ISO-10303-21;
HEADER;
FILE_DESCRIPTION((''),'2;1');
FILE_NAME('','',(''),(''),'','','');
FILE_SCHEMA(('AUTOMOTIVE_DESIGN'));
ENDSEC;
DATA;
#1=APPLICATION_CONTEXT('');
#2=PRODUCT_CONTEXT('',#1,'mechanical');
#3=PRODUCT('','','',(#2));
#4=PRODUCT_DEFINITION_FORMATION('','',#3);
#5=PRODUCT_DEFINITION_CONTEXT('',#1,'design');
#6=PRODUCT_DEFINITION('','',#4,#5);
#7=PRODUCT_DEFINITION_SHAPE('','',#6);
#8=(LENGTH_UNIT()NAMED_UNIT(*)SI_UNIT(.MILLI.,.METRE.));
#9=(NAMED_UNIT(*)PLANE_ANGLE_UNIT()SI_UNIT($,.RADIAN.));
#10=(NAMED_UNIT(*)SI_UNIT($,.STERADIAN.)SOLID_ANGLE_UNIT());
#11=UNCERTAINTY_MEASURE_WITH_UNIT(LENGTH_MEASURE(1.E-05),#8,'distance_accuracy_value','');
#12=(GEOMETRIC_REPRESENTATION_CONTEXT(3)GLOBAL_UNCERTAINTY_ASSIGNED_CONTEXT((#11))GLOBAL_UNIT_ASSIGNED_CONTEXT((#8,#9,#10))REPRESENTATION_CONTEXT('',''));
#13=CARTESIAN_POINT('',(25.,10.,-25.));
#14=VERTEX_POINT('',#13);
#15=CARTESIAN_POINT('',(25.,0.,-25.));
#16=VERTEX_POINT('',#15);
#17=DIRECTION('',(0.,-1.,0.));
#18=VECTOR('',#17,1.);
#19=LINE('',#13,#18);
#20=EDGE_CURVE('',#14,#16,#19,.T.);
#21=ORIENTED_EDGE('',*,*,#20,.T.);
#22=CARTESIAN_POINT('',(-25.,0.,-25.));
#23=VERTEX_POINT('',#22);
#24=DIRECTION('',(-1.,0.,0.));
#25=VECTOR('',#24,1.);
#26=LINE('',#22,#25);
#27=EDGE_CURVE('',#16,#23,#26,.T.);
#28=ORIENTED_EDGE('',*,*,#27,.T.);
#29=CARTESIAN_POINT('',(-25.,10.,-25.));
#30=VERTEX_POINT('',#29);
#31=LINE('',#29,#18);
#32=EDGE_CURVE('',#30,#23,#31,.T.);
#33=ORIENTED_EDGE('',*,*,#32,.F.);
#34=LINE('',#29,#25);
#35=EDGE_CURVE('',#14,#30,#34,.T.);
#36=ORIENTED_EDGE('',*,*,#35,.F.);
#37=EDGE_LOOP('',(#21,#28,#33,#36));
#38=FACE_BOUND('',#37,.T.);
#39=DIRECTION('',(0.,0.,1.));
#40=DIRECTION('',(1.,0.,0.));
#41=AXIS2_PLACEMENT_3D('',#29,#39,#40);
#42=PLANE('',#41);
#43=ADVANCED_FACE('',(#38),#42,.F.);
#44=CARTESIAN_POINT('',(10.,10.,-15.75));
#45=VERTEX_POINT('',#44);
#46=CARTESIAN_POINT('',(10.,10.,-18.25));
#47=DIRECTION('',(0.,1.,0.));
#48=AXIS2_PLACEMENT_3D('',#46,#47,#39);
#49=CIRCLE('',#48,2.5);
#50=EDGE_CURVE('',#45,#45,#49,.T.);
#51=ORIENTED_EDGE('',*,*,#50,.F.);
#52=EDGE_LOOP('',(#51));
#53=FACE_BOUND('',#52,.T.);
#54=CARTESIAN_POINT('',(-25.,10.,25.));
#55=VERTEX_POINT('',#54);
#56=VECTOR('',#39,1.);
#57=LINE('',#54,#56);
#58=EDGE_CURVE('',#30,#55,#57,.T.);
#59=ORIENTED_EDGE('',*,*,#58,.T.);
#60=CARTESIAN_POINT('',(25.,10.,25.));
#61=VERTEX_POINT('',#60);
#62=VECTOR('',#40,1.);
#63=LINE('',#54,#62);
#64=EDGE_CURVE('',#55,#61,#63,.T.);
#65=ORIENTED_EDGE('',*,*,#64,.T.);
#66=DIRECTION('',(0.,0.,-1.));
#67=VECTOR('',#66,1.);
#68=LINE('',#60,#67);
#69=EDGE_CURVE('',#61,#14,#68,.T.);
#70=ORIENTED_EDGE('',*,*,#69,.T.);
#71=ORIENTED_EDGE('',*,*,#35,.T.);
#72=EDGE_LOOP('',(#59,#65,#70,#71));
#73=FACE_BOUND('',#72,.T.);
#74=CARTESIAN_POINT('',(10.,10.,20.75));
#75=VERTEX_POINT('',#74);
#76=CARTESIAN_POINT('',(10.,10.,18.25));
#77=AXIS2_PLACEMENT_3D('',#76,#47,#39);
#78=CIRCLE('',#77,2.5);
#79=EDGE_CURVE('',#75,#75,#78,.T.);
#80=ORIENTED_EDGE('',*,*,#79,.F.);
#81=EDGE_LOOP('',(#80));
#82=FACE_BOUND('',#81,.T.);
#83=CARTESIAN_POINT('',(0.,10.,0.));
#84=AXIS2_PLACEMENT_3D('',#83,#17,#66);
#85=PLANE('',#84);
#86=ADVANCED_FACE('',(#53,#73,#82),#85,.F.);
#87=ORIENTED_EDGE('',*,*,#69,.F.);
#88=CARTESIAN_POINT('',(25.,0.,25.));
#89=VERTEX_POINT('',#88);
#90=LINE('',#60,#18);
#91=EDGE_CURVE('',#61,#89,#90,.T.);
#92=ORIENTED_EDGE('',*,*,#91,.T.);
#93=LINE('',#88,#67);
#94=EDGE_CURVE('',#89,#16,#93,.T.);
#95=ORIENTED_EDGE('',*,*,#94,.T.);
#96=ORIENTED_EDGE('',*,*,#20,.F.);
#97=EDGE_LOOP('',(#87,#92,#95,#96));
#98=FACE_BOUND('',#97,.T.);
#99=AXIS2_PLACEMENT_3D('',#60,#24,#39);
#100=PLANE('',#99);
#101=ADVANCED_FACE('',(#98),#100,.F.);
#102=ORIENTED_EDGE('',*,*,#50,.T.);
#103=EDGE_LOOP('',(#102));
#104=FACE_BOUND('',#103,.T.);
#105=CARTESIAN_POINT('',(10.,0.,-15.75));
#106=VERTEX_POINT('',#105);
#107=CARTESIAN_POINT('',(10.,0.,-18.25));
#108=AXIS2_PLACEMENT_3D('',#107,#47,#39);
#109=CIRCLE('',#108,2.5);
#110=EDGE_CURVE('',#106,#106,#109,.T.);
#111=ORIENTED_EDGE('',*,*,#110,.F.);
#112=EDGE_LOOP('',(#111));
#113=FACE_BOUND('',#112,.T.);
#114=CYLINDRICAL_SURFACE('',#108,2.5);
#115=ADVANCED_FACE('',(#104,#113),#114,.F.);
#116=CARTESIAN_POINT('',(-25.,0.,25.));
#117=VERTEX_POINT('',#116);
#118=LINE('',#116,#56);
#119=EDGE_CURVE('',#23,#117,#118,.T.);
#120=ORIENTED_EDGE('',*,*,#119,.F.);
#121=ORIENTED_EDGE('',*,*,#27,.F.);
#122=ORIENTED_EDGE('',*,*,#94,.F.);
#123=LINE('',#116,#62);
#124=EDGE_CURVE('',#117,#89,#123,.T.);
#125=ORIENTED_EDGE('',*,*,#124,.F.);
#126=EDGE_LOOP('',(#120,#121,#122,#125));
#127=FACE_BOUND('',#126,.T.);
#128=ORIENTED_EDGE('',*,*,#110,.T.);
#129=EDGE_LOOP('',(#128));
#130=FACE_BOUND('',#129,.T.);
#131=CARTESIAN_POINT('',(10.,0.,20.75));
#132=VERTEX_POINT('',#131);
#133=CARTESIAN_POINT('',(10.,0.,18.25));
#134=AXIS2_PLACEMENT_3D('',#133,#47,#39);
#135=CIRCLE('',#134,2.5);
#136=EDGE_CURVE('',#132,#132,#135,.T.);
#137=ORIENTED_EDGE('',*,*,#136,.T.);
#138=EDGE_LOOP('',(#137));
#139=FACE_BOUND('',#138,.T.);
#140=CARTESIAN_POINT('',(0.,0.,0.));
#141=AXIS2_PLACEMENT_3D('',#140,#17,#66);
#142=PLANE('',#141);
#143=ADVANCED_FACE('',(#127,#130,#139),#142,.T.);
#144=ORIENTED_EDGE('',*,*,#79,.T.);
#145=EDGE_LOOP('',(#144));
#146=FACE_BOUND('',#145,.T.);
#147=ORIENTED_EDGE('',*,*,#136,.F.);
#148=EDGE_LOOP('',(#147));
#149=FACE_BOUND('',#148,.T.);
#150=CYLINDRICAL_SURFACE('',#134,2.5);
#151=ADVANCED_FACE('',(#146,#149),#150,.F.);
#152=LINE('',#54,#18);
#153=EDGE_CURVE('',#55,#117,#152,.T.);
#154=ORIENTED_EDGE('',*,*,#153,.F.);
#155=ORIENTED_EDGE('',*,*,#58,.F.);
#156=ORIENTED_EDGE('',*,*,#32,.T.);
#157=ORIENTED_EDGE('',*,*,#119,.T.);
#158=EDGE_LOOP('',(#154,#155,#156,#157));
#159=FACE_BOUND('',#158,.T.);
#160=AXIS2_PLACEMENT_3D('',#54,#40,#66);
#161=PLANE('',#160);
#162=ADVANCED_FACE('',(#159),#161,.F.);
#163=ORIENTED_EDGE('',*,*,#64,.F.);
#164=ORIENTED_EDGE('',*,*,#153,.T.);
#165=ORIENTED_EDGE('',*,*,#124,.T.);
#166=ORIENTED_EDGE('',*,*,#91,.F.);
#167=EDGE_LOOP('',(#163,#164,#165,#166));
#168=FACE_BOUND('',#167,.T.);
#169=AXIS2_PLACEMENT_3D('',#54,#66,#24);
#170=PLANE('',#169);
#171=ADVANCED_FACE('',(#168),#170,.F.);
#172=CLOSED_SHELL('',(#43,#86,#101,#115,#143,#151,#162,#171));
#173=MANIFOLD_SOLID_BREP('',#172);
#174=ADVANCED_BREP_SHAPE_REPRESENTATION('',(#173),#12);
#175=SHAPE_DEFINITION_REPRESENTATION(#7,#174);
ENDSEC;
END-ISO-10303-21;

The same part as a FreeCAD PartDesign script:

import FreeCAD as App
import Part
import Sketcher


def add_polygon(sketch, points):
    """Adds a closed chain of lines whose ends are joined by coincident constraints."""
    first, n = sketch.GeometryCount, len(points)
    for a, b in zip(points, points[1:] + points[:1]):
        sketch.addGeometry(Part.LineSegment(App.Vector(*a, 0), App.Vector(*b, 0)), False)
    for i in range(n):
        sketch.addConstraint(Sketcher.Constraint("Coincident", first + i, 2, first + (i + 1) % n, 1))

doc = App.newDocument("Part")
body = doc.addObject("PartDesign::Body", "Body")

# Sketch on XZ plane
sketch1 = body.newObject("Sketcher::SketchObject", "Sketch")
sketch1.AttachmentSupport = (doc.getObject("XZ_Plane"), [""])
sketch1.MapMode = "FlatFace"
add_polygon(sketch1, [(-25, -25), (-25, 25), (25, 25), (25, -25)])  # lines 0-3
sketch1.addConstraint(Sketcher.Constraint("Vertical", 0))
sketch1.addConstraint(Sketcher.Constraint("Horizontal", 1))
sketch1.addConstraint(Sketcher.Constraint("Vertical", 2))
sketch1.addConstraint(Sketcher.Constraint("Horizontal", 3))
sketch1.addConstraint(Sketcher.Constraint("Symmetric", 0, 2, 2, 2, -1, 1))
sketch1.addConstraint(Sketcher.Constraint("Equal", 3, 0))
sketch1.addConstraint(Sketcher.Constraint("DistanceX", 1, 1, 1, 2, 50.0))
pad1 = body.newObject("PartDesign::Pad", "Pad")
pad1.Profile = sketch1
pad1.Length = 10
pad1.Reversed = True

# Sketch on XZ plane
sketch2 = body.newObject("Sketcher::SketchObject", "Sketch001")
sketch2.AttachmentSupport = (doc.getObject("XZ_Plane"), [""])
sketch2.MapMode = "FlatFace"
sketch2.AttachmentOffset = App.Placement(App.Vector(0, 0, -10), App.Rotation())
sketch2.addGeometry(Part.Circle(App.Vector(10, -18.2, 0), App.Vector(0, 0, 1), 2.5), False)
sketch2.addGeometry(Part.Circle(App.Vector(10, 18.2, 0), App.Vector(0, 0, 1), 2.5), False)
sketch2.addConstraint(Sketcher.Constraint("Equal", 0, 1))
sketch2.addConstraint(Sketcher.Constraint("Symmetric", 0, 3, 1, 3, -1))
sketch2.addConstraint(Sketcher.Constraint("Diameter", 0, 5.0))
sketch2.addConstraint(Sketcher.Constraint("DistanceX", -1, 1, 0, 3, 10.0))
sketch2.addConstraint(Sketcher.Constraint("DistanceY", 0, 3, 1, 3, 36.5))
pocket1 = body.newObject("PartDesign::Pocket", "Pocket")
pocket1.Profile = sketch2
pocket1.Type = "ThroughAll"
pocket1.Reversed = True

doc.recompute()
